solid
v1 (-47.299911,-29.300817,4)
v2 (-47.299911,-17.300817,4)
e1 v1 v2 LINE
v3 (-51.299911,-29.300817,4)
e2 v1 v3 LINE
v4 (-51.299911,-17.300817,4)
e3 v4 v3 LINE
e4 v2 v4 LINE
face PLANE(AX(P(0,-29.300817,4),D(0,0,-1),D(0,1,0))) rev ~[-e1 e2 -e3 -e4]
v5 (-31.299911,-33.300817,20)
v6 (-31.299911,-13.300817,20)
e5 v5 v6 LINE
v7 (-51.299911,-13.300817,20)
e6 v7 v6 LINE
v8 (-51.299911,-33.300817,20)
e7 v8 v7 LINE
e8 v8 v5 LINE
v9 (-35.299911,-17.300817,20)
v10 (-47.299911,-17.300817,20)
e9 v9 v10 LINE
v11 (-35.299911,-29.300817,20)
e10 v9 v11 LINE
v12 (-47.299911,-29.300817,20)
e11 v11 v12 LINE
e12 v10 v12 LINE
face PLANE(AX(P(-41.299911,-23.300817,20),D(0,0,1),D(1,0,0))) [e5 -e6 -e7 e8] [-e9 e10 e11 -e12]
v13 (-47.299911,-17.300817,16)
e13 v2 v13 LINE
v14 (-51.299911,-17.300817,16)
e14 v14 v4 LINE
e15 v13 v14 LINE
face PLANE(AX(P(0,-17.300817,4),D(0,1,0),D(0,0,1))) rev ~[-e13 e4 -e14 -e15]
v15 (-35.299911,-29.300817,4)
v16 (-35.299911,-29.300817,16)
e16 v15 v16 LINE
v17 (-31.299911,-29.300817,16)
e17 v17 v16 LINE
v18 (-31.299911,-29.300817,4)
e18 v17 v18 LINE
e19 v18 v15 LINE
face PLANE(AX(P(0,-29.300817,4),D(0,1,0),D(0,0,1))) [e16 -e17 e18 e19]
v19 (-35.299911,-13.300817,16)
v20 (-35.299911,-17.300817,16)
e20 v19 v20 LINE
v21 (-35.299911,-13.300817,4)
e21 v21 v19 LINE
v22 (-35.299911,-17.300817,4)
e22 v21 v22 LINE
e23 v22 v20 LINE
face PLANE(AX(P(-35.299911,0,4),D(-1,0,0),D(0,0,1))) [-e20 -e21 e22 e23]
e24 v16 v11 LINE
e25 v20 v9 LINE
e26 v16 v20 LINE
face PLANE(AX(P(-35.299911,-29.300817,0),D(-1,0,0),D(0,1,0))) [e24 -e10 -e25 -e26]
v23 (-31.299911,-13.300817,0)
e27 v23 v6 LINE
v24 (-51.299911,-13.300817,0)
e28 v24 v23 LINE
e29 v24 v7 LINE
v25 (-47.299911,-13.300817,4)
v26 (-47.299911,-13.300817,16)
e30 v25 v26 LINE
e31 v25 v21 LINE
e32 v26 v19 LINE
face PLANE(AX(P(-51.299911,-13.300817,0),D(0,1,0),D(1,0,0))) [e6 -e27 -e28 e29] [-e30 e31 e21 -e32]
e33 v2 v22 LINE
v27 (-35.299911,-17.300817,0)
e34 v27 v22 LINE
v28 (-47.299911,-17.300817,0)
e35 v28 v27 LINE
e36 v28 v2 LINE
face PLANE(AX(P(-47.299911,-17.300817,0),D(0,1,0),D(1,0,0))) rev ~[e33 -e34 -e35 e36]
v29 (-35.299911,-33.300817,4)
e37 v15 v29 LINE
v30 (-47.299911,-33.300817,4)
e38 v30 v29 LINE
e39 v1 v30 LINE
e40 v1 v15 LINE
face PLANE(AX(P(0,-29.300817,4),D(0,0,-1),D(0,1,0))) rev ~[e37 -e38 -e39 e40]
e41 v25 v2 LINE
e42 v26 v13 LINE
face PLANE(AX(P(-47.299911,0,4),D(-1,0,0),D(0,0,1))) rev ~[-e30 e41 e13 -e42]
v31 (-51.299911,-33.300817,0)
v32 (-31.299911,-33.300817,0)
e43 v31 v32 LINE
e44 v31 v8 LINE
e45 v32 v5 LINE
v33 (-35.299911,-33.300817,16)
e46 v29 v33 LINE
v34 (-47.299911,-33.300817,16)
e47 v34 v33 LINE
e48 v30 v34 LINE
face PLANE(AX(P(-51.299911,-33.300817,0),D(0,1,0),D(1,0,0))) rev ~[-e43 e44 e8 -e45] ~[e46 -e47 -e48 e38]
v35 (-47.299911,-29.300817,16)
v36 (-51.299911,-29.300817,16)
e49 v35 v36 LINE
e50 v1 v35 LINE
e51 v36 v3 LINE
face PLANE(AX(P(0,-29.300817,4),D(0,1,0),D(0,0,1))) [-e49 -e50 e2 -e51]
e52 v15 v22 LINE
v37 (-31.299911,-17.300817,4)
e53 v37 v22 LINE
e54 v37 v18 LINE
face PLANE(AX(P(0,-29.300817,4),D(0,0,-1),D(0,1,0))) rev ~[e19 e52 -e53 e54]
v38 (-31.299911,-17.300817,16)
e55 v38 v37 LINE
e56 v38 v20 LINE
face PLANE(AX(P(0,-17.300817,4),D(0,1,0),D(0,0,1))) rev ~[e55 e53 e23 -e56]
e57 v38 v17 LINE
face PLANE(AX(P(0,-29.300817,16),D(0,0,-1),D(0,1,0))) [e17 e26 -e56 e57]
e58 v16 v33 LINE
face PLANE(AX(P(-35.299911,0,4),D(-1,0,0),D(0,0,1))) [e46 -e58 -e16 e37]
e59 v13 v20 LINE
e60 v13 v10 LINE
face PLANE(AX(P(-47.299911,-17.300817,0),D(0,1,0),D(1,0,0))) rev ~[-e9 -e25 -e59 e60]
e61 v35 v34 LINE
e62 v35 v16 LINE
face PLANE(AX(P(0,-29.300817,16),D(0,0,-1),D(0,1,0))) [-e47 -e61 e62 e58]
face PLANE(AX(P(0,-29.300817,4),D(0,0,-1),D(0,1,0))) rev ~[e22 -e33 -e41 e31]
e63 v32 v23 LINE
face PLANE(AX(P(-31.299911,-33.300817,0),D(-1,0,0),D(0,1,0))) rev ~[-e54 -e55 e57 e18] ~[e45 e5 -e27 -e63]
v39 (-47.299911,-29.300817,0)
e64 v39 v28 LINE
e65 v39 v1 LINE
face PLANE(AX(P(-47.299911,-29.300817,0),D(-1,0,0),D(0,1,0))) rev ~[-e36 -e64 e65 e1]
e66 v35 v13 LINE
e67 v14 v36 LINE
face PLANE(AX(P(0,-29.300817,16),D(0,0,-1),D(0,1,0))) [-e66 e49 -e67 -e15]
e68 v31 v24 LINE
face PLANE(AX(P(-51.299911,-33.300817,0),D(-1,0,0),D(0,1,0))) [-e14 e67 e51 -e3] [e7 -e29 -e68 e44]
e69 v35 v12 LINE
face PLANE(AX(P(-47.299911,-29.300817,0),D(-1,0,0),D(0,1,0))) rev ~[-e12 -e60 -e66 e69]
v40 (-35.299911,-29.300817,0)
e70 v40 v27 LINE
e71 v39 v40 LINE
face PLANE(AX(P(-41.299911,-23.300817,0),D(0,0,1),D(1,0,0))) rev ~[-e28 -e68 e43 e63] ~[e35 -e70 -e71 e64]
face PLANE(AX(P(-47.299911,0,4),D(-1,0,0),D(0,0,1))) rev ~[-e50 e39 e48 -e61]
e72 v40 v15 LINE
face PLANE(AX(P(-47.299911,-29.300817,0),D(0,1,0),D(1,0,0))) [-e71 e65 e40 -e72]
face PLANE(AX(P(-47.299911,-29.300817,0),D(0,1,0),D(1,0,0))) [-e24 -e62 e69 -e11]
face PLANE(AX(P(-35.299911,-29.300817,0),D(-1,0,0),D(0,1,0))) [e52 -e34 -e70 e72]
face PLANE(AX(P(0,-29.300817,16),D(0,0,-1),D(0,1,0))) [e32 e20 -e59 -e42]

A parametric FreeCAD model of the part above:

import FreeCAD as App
import Part
import Sketcher


def add_polygon(sketch, points):
    """Adds a closed chain of lines whose ends are joined by coincident constraints."""
    first, n = sketch.GeometryCount, len(points)
    for a, b in zip(points, points[1:] + points[:1]):
        sketch.addGeometry(Part.LineSegment(App.Vector(*a, 0), App.Vector(*b, 0)), False)
    for i in range(n):
        sketch.addConstraint(Sketcher.Constraint("Coincident", first + i, 2, first + (i + 1) % n, 1))

doc = App.newDocument("Part")
body = doc.addObject("PartDesign::Body", "Body")

sketch1 = body.newObject("Sketcher::SketchObject", "Sketch")
sketch1.AttachmentSupport = (doc.getObject("XY_Plane"), [""])
sketch1.MapMode = "FlatFace"
add_polygon(sketch1, [(-51, -13), (-51, -33), (-31, -33), (-31, -13)])
sketch1.addConstraint([
    Sketcher.Constraint("Vertical", 0),
    Sketcher.Constraint("Horizontal", 1),
    Sketcher.Constraint("Vertical", 2),
    Sketcher.Constraint("Horizontal", 3),
    Sketcher.Constraint("Equal", 3, 0),
    Sketcher.Constraint("DistanceX", 1, 1, 1, 2, 20.0),
    Sketcher.Constraint("DistanceX", 0, 2, -1, 1, 51.299911),
    Sketcher.Constraint("DistanceY", 0, 2, -1, 1, 33.300817),
])
pad1 = body.newObject("PartDesign::Pad", "Pad")
pad1.Profile = sketch1
pad1.Length = 20

sketch2 = body.newObject("Sketcher::SketchObject", "Sketch001")
sketch2.AttachmentSupport = (doc.getObject("YZ_Plane"), [""])
sketch2.MapMode = "FlatFace"
add_polygon(sketch2, [(-29, 16), (-29, 4), (-17, 4), (-17, 16)])
sketch2.addConstraint([
    Sketcher.Constraint("Vertical", 0),
    Sketcher.Constraint("Horizontal", 1),
    Sketcher.Constraint("Vertical", 2),
    Sketcher.Constraint("Horizontal", 3),
    Sketcher.Constraint("Equal", 3, 0),
    Sketcher.Constraint("DistanceX", 1, 1, 1, 2, 12.0),
    Sketcher.Constraint("DistanceY", -1, 1, 0, 2, 4.0),
    Sketcher.Constraint("DistanceX", 0, 2, -1, 1, 29.300817),
])
pocket1 = body.newObject("PartDesign::Pocket", "Pocket")
pocket1.Profile = sketch2
pocket1.Length = 90

sketch3 = body.newObject("Sketcher::SketchObject", "Sketch002")
sketch3.AttachmentSupport = (doc.getObject("XZ_Plane"), [""])
sketch3.MapMode = "FlatFace"
add_polygon(sketch3, [(-47, 16), (-47, 4), (-35, 4), (-35, 16)])
sketch3.addConstraint([
    Sketcher.Constraint("Vertical", 0),
    Sketcher.Constraint("Horizontal", 1),
    Sketcher.Constraint("Vertical", 2),
    Sketcher.Constraint("Horizontal", 3),
    Sketcher.Constraint("Equal", 3, 0),
    Sketcher.Constraint("DistanceX", 1, 1, 1, 2, 12.0),
    Sketcher.Constraint("DistanceY", -1, 1, 0, 2, 4.0),
    Sketcher.Constraint("DistanceX", 0, 2, -1, 1, 47.299911),
])
pocket2 = body.newObject("PartDesign::Pocket", "Pocket001")
pocket2.Profile = sketch3
pocket2.Length = 60.3
pocket2.Reversed = True

sketch4 = body.newObject("Sketcher::SketchObject", "Sketch003")
sketch4.AttachmentSupport = (doc.getObject("XY_Plane"), [""])
sketch4.MapMode = "FlatFace"
add_polygon(sketch4, [(-47, -17), (-47, -29), (-35, -29), (-35, -17)])
sketch4.addConstraint([
    Sketcher.Constraint("Vertical", 0),
    Sketcher.Constraint("Horizontal", 1),
    Sketcher.Constraint("Vertical", 2),
    Sketcher.Constraint("Horizontal", 3),
    Sketcher.Constraint("Equal", 3, 0),
    Sketcher.Constraint("DistanceX", 1, 1, 1, 2, 12.0),
    Sketcher.Constraint("DistanceX", 0, 2, -1, 1, 47.299911),
    Sketcher.Constraint("DistanceY", 0, 2, -1, 1, 29.300817),
])
pocket3 = body.newObject("PartDesign::Pocket", "Pocket002")
pocket3.Profile = sketch4
pocket3.Length = 36
pocket3.Reversed = True

doc.recompute()
